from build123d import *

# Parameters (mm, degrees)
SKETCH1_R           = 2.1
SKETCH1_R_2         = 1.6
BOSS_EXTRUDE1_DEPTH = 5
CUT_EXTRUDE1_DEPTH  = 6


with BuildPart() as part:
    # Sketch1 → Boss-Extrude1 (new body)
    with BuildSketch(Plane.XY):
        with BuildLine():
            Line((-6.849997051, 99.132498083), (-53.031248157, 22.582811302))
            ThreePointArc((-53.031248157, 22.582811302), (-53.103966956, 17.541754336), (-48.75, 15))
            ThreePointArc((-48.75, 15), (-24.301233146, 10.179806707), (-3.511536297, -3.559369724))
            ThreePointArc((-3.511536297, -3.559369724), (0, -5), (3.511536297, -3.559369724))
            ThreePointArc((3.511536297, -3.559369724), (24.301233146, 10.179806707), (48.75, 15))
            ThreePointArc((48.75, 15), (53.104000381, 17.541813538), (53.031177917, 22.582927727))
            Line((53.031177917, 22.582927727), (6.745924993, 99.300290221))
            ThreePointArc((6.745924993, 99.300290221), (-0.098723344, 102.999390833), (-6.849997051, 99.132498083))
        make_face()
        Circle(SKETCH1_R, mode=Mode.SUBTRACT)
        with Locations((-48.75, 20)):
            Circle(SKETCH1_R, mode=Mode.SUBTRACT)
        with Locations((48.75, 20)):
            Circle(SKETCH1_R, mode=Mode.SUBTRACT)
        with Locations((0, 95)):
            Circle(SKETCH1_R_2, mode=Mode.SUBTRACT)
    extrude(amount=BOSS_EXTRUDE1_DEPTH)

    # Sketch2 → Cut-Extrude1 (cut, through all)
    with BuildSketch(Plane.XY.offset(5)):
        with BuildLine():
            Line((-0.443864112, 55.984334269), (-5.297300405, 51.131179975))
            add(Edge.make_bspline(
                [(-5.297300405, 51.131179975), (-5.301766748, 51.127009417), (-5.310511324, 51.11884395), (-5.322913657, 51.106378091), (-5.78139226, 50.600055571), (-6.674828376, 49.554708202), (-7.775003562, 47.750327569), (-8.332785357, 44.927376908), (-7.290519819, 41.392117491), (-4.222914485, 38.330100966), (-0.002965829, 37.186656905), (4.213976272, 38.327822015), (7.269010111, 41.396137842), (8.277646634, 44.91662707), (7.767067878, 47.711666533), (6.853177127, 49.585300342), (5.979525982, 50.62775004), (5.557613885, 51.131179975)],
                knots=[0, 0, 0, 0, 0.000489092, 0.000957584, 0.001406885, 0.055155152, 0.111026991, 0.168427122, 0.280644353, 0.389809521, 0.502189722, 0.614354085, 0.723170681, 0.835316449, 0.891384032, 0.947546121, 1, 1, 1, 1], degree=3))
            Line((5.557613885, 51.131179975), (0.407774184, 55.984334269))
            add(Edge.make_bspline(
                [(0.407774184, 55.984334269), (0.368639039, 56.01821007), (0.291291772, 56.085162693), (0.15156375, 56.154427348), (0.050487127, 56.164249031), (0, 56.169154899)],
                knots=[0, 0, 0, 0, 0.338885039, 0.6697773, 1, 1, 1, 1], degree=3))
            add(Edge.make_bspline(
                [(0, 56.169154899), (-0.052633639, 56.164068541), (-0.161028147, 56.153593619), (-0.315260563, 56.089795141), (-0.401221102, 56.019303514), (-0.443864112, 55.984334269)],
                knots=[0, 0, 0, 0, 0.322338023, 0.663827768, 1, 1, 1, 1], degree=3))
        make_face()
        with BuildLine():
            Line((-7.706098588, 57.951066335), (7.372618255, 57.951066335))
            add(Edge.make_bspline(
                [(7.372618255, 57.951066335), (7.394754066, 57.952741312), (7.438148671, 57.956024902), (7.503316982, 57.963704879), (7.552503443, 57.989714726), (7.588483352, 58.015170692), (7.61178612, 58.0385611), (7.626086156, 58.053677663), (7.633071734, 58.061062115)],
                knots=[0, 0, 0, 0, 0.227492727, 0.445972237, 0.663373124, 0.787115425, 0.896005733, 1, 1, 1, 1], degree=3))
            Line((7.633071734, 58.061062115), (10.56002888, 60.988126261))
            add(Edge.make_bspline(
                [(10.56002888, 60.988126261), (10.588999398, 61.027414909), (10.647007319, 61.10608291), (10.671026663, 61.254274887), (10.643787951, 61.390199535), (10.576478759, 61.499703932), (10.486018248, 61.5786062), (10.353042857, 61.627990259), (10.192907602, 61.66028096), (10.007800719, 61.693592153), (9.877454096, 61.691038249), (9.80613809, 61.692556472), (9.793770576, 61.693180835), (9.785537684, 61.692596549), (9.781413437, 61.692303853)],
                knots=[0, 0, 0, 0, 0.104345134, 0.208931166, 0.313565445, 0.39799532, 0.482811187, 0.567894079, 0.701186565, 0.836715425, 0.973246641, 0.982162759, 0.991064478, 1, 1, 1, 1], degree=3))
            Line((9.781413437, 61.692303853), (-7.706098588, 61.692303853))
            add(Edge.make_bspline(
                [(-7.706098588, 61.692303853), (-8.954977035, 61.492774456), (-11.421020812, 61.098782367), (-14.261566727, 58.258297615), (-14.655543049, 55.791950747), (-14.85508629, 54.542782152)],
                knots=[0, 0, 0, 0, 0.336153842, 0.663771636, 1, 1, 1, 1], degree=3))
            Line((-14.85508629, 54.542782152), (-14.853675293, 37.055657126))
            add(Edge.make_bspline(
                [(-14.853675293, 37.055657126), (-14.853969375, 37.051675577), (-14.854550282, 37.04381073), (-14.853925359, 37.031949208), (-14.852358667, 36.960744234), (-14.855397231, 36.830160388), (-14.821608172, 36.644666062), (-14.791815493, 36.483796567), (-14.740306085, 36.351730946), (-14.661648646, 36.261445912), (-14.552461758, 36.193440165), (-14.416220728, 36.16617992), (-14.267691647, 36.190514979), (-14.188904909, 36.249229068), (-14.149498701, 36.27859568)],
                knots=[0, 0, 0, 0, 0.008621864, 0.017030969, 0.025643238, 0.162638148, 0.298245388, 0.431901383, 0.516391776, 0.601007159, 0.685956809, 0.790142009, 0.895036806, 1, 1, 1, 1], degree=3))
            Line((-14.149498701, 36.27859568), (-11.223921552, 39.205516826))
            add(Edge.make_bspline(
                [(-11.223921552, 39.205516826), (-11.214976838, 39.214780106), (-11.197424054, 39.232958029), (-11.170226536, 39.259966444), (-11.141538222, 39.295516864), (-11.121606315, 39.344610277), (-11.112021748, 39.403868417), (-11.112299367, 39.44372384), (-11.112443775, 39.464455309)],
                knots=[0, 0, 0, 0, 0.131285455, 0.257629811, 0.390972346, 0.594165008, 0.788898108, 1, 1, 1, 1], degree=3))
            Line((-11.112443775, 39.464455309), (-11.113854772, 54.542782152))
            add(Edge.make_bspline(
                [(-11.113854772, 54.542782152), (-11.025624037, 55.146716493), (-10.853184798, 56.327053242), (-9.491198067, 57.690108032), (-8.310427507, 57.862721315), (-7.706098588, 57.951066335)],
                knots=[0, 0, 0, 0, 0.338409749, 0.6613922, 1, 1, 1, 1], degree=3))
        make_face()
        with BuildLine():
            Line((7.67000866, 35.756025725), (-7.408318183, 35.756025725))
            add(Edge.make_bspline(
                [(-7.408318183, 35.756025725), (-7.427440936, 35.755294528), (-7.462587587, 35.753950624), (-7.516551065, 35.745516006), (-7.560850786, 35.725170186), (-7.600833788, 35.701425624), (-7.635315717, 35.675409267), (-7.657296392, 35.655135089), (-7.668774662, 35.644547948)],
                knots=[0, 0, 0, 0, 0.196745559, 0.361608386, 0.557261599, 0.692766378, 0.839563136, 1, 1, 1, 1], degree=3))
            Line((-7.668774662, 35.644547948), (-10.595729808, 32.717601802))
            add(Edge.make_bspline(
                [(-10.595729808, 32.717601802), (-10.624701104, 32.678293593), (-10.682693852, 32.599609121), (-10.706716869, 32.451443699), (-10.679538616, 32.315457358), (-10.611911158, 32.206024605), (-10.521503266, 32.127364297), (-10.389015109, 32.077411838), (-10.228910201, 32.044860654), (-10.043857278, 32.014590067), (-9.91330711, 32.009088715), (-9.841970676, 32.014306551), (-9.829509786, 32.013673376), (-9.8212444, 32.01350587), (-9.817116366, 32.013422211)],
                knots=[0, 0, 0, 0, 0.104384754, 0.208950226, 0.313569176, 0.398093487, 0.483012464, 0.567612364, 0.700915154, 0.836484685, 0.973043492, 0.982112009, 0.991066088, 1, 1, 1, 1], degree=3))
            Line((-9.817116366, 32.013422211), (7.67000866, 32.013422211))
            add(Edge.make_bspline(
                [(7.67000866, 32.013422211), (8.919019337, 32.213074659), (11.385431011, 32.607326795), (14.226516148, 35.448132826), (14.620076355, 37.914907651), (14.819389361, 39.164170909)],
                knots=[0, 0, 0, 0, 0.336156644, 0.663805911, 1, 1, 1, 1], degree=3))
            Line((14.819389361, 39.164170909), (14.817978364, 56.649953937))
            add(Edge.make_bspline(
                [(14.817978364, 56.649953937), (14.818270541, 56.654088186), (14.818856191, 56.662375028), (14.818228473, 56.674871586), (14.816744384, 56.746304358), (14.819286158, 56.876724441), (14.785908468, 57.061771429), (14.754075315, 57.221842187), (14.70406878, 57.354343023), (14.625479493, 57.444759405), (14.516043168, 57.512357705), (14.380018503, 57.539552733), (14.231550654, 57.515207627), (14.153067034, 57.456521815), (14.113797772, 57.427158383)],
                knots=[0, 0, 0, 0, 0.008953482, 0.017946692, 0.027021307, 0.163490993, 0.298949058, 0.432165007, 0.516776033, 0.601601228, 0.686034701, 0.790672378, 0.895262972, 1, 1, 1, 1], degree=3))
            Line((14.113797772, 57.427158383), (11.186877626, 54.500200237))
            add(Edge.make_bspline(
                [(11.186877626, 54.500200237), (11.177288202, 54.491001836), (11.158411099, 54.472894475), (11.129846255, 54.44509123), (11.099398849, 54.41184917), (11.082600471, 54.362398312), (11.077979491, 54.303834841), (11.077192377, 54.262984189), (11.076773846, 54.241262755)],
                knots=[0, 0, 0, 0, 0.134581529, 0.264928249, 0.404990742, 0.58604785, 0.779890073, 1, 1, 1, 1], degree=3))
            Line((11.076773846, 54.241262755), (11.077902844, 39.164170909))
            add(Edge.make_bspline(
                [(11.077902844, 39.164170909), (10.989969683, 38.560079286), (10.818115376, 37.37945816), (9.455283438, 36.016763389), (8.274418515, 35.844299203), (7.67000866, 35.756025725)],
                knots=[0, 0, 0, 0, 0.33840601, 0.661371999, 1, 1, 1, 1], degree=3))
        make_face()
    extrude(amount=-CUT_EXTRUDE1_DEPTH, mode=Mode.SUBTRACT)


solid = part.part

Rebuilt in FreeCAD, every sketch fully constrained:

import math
import FreeCAD as App
import Part
import Sketcher

V = App.Vector

doc = App.newDocument("Part")
body = doc.addObject("PartDesign::Body", "Body")

sketch1 = body.newObject("Sketcher::SketchObject", "Sketch")
sketch1.AttachmentSupport = (doc.getObject("XY_Plane"), [""])
sketch1.MapMode = "FlatFace"
sketch1.addGeometry([
    Part.LineSegment(V(-6.8, 99.1, 0), V(-53, 22.6, 0)),
    Part.ArcOfCircle(Part.Circle(V(-48.8, 20, 0), V(0, 0, 1), 5), math.radians(149), math.radians(270)),
    Part.ArcOfCircle(Part.Circle(V(-48.8, -49.4, 0), V(0, 0, 1), 64.4), math.radians(45), math.radians(90)),
    Part.ArcOfCircle(Part.Circle(V(0, 0, 0), V(0, 0, 1), 5), math.radians(-135), math.radians(-45)),
    Part.ArcOfCircle(Part.Circle(V(48.8, -49.4, 0), V(0, 0, 1), 64.4), math.radians(90), math.radians(135)),
    Part.ArcOfCircle(Part.Circle(V(48.8, 20, 0), V(0, 0, 1), 5), math.radians(-90), math.radians(31)),
    Part.LineSegment(V(53, 22.6, 0), V(6.7, 99.3, 0)),
    Part.ArcOfCircle(Part.Circle(V(0, 95, 0), V(0, 0, 1), 8), math.radians(33), math.radians(149)),
    Part.Circle(V(-48.8, 20, 0), V(0, 0, 1), 2.1),
    Part.Circle(V(0, 0, 0), V(0, 0, 1), 2.1),
    Part.Circle(V(48.8, 20, 0), V(0, 0, 1), 2.1),
    Part.Circle(V(0, 95, 0), V(0, 0, 1), 1.6),
], False)
sketch1.addConstraint([
    Sketcher.Constraint("Tangent", 0, 2, 1, 1),
    Sketcher.Constraint("Tangent", 1, 2, 2, 2),
    Sketcher.Constraint("Tangent", 2, 1, 3, 1),
    Sketcher.Constraint("Tangent", 3, 2, 4, 2),
    Sketcher.Constraint("Tangent", 4, 1, 5, 1),
    Sketcher.Constraint("Tangent", 5, 2, 6, 1),
    Sketcher.Constraint("Coincident", 6, 2, 7, 1),
    Sketcher.Constraint("Tangent", 7, 2, 0, 1),
    Sketcher.Constraint("Coincident", 3, 3, -1, 1),
    Sketcher.Constraint("Coincident", 9, 3, -1, 1),
    Sketcher.Constraint("Coincident", 8, 3, 1, 3),
    Sketcher.Constraint("Coincident", 10, 3, 5, 3),
    Sketcher.Constraint("Coincident", 11, 3, 7, 3),
    Sketcher.Constraint("Equal", 1, 3),
    Sketcher.Constraint("Equal", 2, 4),
    Sketcher.Constraint("Equal", 3, 5),
    Sketcher.Constraint("Equal", 8, 9),
    Sketcher.Constraint("Equal", 9, 10),
    Sketcher.Constraint("Symmetric", 1, 3, 5, 3, -2),
    Sketcher.Constraint("PointOnObject", 7, 3, -2),
    Sketcher.Constraint("Vertical", 1, 3, 2, 3),
    Sketcher.Constraint("Radius", 1, 5.0),
    Sketcher.Constraint("Radius", 7, 8.0),
    Sketcher.Constraint("Diameter", 8, 4.2),
    Sketcher.Constraint("Diameter", 11, 3.2),
    Sketcher.Constraint("DistanceY", -1, 1, 1, 3, 20.0),
    Sketcher.Constraint("DistanceY", -1, 1, 7, 3, 95.0),
    Sketcher.Constraint("DistanceX", 2, 3, 4, 3, 97.5),
    Sketcher.Constraint("Distance", 6, 89.598428),
])
pad1 = body.newObject("PartDesign::Pad", "Pad")
pad1.Profile = sketch1
pad1.Length = 5

sketch2 = body.newObject("Sketcher::SketchObject", "Sketch001")
sketch2.AttachmentSupport = (doc.getObject("XY_Plane"), [""])
sketch2.MapMode = "FlatFace"
sketch2.AttachmentOffset = App.Placement(V(0, 0, 5), App.Rotation())
sketch2.addGeometry([
    Part.LineSegment(V(-0.443864, 55.984334, 0), V(-5.2973, 51.13118, 0)),
    Part.BSplineCurve([V(-5.2973, 51.13118, 0), V(-5.301767, 51.127009, 0), V(-5.310511, 51.118844, 0), V(-5.322914, 51.106378, 0), V(-5.781392, 50.600056, 0), V(-6.674828, 49.554708, 0), V(-7.775004, 47.750328, 0), V(-8.332785, 44.927377, 0), V(-7.29052, 41.392117, 0), V(-4.222914, 38.330101, 0), V(-0.002966, 37.186657, 0), V(4.213976, 38.327822, 0), V(7.26901, 41.396138, 0), V(8.277647, 44.916627, 0), V(7.767068, 47.711667, 0), V(6.853177, 49.5853, 0), V(5.979526, 50.62775, 0), V(5.557614, 51.13118, 0)], [4, 1, 1, 1, 1, 1, 1, 1, 1, 1, 1, 1, 1, 1, 1, 4], [0, 0.000489092, 0.000957584, 0.001406885, 0.055155152, 0.111026991, 0.168427122, 0.280644353, 0.389809521, 0.502189722, 0.614354085, 0.723170681, 0.835316449, 0.891384032, 0.947546121, 1], False, 3, [1, 1, 1, 1, 1, 1, 1, 1, 1, 1, 1, 1, 1, 1, 1, 1, 1, 1], False),
    Part.LineSegment(V(5.557614, 51.13118, 0), V(0.407774, 55.984334, 0)),
    Part.BSplineCurve([V(0.407774, 55.984334, 0), V(0.368639, 56.01821, 0), V(0.291292, 56.085163, 0), V(0.151564, 56.154427, 0), V(0.050487, 56.164249, 0), V(0, 56.169155, 0)], [4, 1, 1, 4], [0, 0.338885039, 0.6697773, 1], False, 3, [1, 1, 1, 1, 1, 1], False),
    Part.BSplineCurve([V(0, 56.169155, 0), V(-0.052634, 56.164069, 0), V(-0.161028, 56.153594, 0), V(-0.315261, 56.089795, 0), V(-0.401221, 56.019304, 0), V(-0.443864, 55.984334, 0)], [4, 1, 1, 4], [0, 0.322338023, 0.663827768, 1], False, 3, [1, 1, 1, 1, 1, 1], False),
    Part.LineSegment(V(-7.706099, 57.951066, 0), V(7.372618, 57.951066, 0)),
    Part.BSplineCurve([V(7.372618, 57.951066, 0), V(7.394754, 57.952741, 0), V(7.438149, 57.956025, 0), V(7.503317, 57.963705, 0), V(7.552503, 57.989715, 0), V(7.588483, 58.015171, 0), V(7.611786, 58.038561, 0), V(7.626086, 58.053678, 0), V(7.633072, 58.061062, 0)], [4, 1, 1, 1, 1, 1, 4], [0, 0.227492727, 0.445972237, 0.663373124, 0.787115425, 0.896005733, 1], False, 3, [1, 1, 1, 1, 1, 1, 1, 1, 1], False),
    Part.LineSegment(V(7.633072, 58.061062, 0), V(10.560029, 60.988126, 0)),
    Part.BSplineCurve([V(10.560029, 60.988126, 0), V(10.588999, 61.027415, 0), V(10.647007, 61.106083, 0), V(10.671027, 61.254275, 0), V(10.643788, 61.3902, 0), V(10.576479, 61.499704, 0), V(10.486018, 61.578606, 0), V(10.353043, 61.62799, 0), V(10.192908, 61.660281, 0), V(10.007801, 61.693592, 0), V(9.877454, 61.691038, 0), V(9.806138, 61.692556, 0), V(9.793771, 61.693181, 0), V(9.785538, 61.692597, 0), V(9.781413, 61.692304, 0)], [4, 1, 1, 1, 1, 1, 1, 1, 1, 1, 1, 1, 4], [0, 0.104345134, 0.208931166, 0.313565445, 0.39799532, 0.482811187, 0.567894079, 0.701186565, 0.836715425, 0.973246641, 0.982162759, 0.991064478, 1], False, 3, [1, 1, 1, 1, 1, 1, 1, 1, 1, 1, 1, 1, 1, 1, 1], False),
    Part.LineSegment(V(9.781413, 61.692304, 0), V(-7.706099, 61.692304, 0)),
    Part.BSplineCurve([V(-7.706099, 61.692304, 0), V(-8.954977, 61.492774, 0), V(-11.421021, 61.098782, 0), V(-14.261567, 58.258298, 0), V(-14.655543, 55.791951, 0), V(-14.855086, 54.542782, 0)], [4, 1, 1, 4], [0, 0.336153842, 0.663771636, 1], False, 3, [1, 1, 1, 1, 1, 1], False),
    Part.LineSegment(V(-14.855086, 54.542782, 0), V(-14.853675, 37.055657, 0)),
    Part.BSplineCurve([V(-14.853675, 37.055657, 0), V(-14.853969, 37.051676, 0), V(-14.85455, 37.043811, 0), V(-14.853925, 37.031949, 0), V(-14.852359, 36.960744, 0), V(-14.855397, 36.83016, 0), V(-14.821608, 36.644666, 0), V(-14.791815, 36.483797, 0), V(-14.740306, 36.351731, 0), V(-14.661649, 36.261446, 0), V(-14.552462, 36.19344, 0), V(-14.416221, 36.16618, 0), V(-14.267692, 36.190515, 0), V(-14.188905, 36.249229, 0), V(-14.149499, 36.278596, 0)], [4, 1, 1, 1, 1, 1, 1, 1, 1, 1, 1, 1, 4], [0, 0.008621864, 0.017030969, 0.025643238, 0.162638148, 0.298245388, 0.431901383, 0.516391776, 0.601007159, 0.685956809, 0.790142009, 0.895036806, 1], False, 3, [1, 1, 1, 1, 1, 1, 1, 1, 1, 1, 1, 1, 1, 1, 1], False),
    Part.LineSegment(V(-14.149499, 36.278596, 0), V(-11.223922, 39.205517, 0)),
    Part.BSplineCurve([V(-11.223922, 39.205517, 0), V(-11.214977, 39.21478, 0), V(-11.197424, 39.232958, 0), V(-11.170227, 39.259966, 0), V(-11.141538, 39.295517, 0), V(-11.121606, 39.34461, 0), V(-11.112022, 39.403868, 0), V(-11.112299, 39.443724, 0), V(-11.112444, 39.464455, 0)], [4, 1, 1, 1, 1, 1, 4], [0, 0.131285455, 0.257629811, 0.390972346, 0.594165008, 0.788898108, 1], False, 3, [1, 1, 1, 1, 1, 1, 1, 1, 1], False),
    Part.LineSegment(V(-11.112444, 39.464455, 0), V(-11.113855, 54.542782, 0)),
    Part.BSplineCurve([V(-11.113855, 54.542782, 0), V(-11.025624, 55.146716, 0), V(-10.853185, 56.327053, 0), V(-9.491198, 57.690108, 0), V(-8.310428, 57.862721, 0), V(-7.706099, 57.951066, 0)], [4, 1, 1, 4], [0, 0.338409749, 0.6613922, 1], False, 3, [1, 1, 1, 1, 1, 1], False),
    Part.LineSegment(V(7.670009, 35.756026, 0), V(-7.408318, 35.756026, 0)),
    Part.BSplineCurve([V(-7.408318, 35.756026, 0), V(-7.427441, 35.755295, 0), V(-7.462588, 35.753951, 0), V(-7.516551, 35.745516, 0), V(-7.560851, 35.72517, 0), V(-7.600834, 35.701426, 0), V(-7.635316, 35.675409, 0), V(-7.657296, 35.655135, 0), V(-7.668775, 35.644548, 0)], [4, 1, 1, 1, 1, 1, 4], [0, 0.196745559, 0.361608386, 0.557261599, 0.692766378, 0.839563136, 1], False, 3, [1, 1, 1, 1, 1, 1, 1, 1, 1], False),
    Part.LineSegment(V(-7.668775, 35.644548, 0), V(-10.59573, 32.717602, 0)),
    Part.BSplineCurve([V(-10.59573, 32.717602, 0), V(-10.624701, 32.678294, 0), V(-10.682694, 32.599609, 0), V(-10.706717, 32.451444, 0), V(-10.679539, 32.315457, 0), V(-10.611911, 32.206025, 0), V(-10.521503, 32.127364, 0), V(-10.389015, 32.077412, 0), V(-10.22891, 32.044861, 0), V(-10.043857, 32.01459, 0), V(-9.913307, 32.009089, 0), V(-9.841971, 32.014307, 0), V(-9.82951, 32.013673, 0), V(-9.821244, 32.013506, 0), V(-9.817116, 32.013422, 0)], [4, 1, 1, 1, 1, 1, 1, 1, 1, 1, 1, 1, 4], [0, 0.104384754, 0.208950226, 0.313569176, 0.398093487, 0.483012464, 0.567612364, 0.700915154, 0.836484685, 0.973043492, 0.982112009, 0.991066088, 1], False, 3, [1, 1, 1, 1, 1, 1, 1, 1, 1, 1, 1, 1, 1, 1, 1], False),
    Part.LineSegment(V(-9.817116, 32.013422, 0), V(7.670009, 32.013422, 0)),
    Part.BSplineCurve([V(7.670009, 32.013422, 0), V(8.919019, 32.213075, 0), V(11.385431, 32.607327, 0), V(14.226516, 35.448133, 0), V(14.620076, 37.914908, 0), V(14.819389, 39.164171, 0)], [4, 1, 1, 4], [0, 0.336156644, 0.663805911, 1], False, 3, [1, 1, 1, 1, 1, 1], False),
    Part.LineSegment(V(14.819389, 39.164171, 0), V(14.817978, 56.649954, 0)),
    Part.BSplineCurve([V(14.817978, 56.649954, 0), V(14.818271, 56.654088, 0), V(14.818856, 56.662375, 0), V(14.818228, 56.674872, 0), V(14.816744, 56.746304, 0), V(14.819286, 56.876724, 0), V(14.785908, 57.061771, 0), V(14.754075, 57.221842, 0), V(14.704069, 57.354343, 0), V(14.625479, 57.444759, 0), V(14.516043, 57.512358, 0), V(14.380019, 57.539553, 0), V(14.231551, 57.515208, 0), V(14.153067, 57.456522, 0), V(14.113798, 57.427158, 0)], [4, 1, 1, 1, 1, 1, 1, 1, 1, 1, 1, 1, 4], [0, 0.008953482, 0.017946692, 0.027021307, 0.163490993, 0.298949058, 0.432165007, 0.516776033, 0.601601228, 0.686034701, 0.790672378, 0.895262972, 1], False, 3, [1, 1, 1, 1, 1, 1, 1, 1, 1, 1, 1, 1, 1, 1, 1], False),
    Part.LineSegment(V(14.113798, 57.427158, 0), V(11.186878, 54.5002, 0)),
    Part.BSplineCurve([V(11.186878, 54.5002, 0), V(11.177288, 54.491002, 0), V(11.158411, 54.472894, 0), V(11.129846, 54.445091, 0), V(11.099399, 54.411849, 0), V(11.0826, 54.362398, 0), V(11.077979, 54.303835, 0), V(11.077192, 54.262984, 0), V(11.076774, 54.241263, 0)], [4, 1, 1, 1, 1, 1, 4], [0, 0.134581529, 0.264928249, 0.404990742, 0.58604785, 0.779890073, 1], False, 3, [1, 1, 1, 1, 1, 1, 1, 1, 1], False),
    Part.LineSegment(V(11.076774, 54.241263, 0), V(11.077903, 39.164171, 0)),
    Part.BSplineCurve([V(11.077903, 39.164171, 0), V(10.98997, 38.560079, 0), V(10.818115, 37.379458, 0), V(9.455283, 36.016763, 0), V(8.274419, 35.844299, 0), V(7.670009, 35.756026, 0)], [4, 1, 1, 4], [0, 0.33840601, 0.661371999, 1], False, 3, [1, 1, 1, 1, 1, 1], False),
], False)
sketch2.addConstraint([
    Sketcher.Constraint("Block", 1),
    Sketcher.Constraint("Block", 3),
    Sketcher.Constraint("Block", 4),
    Sketcher.Constraint("Block", 6),
    Sketcher.Constraint("Block", 8),
    Sketcher.Constraint("Block", 10),
    Sketcher.Constraint("Block", 12),
    Sketcher.Constraint("Block", 14),
    Sketcher.Constraint("Block", 16),
    Sketcher.Constraint("Block", 18),
    Sketcher.Constraint("Block", 20),
    Sketcher.Constraint("Block", 22),
    Sketcher.Constraint("Block", 24),
    Sketcher.Constraint("Block", 26),
    Sketcher.Constraint("Block", 28),
    Sketcher.Constraint("Coincident", 0, 2, 1, 1),
    Sketcher.Constraint("Coincident", 1, 2, 2, 1),
    Sketcher.Constraint("Coincident", 2, 2, 3, 1),
    Sketcher.Constraint("Coincident", 4, 2, 0, 1),
    Sketcher.Constraint("Coincident", 5, 2, 6, 1),
    Sketcher.Constraint("Coincident", 6, 2, 7, 1),
    Sketcher.Constraint("Coincident", 7, 2, 8, 1),
    Sketcher.Constraint("Coincident", 8, 2, 9, 1),
    Sketcher.Constraint("Coincident", 9, 2, 10, 1),
    Sketcher.Constraint("Coincident", 10, 2, 11, 1),
    Sketcher.Constraint("Coincident", 11, 2, 12, 1),
    Sketcher.Constraint("Coincident", 12, 2, 13, 1),
    Sketcher.Constraint("Coincident", 13, 2, 14, 1),
    Sketcher.Constraint("Coincident", 14, 2, 15, 1),
    Sketcher.Constraint("Coincident", 15, 2, 16, 1),
    Sketcher.Constraint("Coincident", 16, 2, 5, 1),
    Sketcher.Constraint("Coincident", 17, 2, 18, 1),
    Sketcher.Constraint("Coincident", 18, 2, 19, 1),
    Sketcher.Constraint("Coincident", 19, 2, 20, 1),
    Sketcher.Constraint("Coincident", 20, 2, 21, 1),
    Sketcher.Constraint("Coincident", 21, 2, 22, 1),
    Sketcher.Constraint("Coincident", 22, 2, 23, 1),
    Sketcher.Constraint("Coincident", 23, 2, 24, 1),
    Sketcher.Constraint("Coincident", 24, 2, 25, 1),
    Sketcher.Constraint("Coincident", 25, 2, 26, 1),
    Sketcher.Constraint("Coincident", 26, 2, 27, 1),
    Sketcher.Constraint("Coincident", 27, 2, 28, 1),
    Sketcher.Constraint("Coincident", 28, 2, 17, 1),
])
pocket1 = body.newObject("PartDesign::Pocket", "Pocket")
pocket1.Profile = sketch2
pocket1.Type = "ThroughAll"

doc.recompute()
